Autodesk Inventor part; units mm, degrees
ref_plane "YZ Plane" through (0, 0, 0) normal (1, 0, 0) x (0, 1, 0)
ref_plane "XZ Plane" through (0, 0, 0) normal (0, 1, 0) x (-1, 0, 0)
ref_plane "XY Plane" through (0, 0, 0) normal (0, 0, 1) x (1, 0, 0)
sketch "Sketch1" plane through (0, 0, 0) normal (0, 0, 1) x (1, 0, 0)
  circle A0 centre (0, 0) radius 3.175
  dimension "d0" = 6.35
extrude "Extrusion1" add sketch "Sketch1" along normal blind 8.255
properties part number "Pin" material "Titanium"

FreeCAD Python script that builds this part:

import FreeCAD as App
import Part
import Sketcher
from FreeCAD import Vector
Q = App.Units.Quantity

doc = App.newDocument("Part")
params = doc.addObject("Spreadsheet::Sheet", "Params")
for row, (alias, value) in enumerate([
    ("sketch1_diameter", "0.25 in"),
    ("pad1_length", "0.325 in"),
], start=1):
    params.set(f"A{row}", alias)
    params.set(f"B{row}", "=" + value)
    params.setAlias(f"B{row}", alias)

body = doc.addObject("PartDesign::Body", "Body")

sketch1 = body.newObject("Sketcher::SketchObject", "Sketch")
sketch1.AttachmentSupport = (doc.getObject("XY_Plane"), [""])
sketch1.MapMode = "FlatFace"
sketch1.addGeometry(Part.Circle(Vector(0, 0, 0), Vector(0, 0, 1), 3.175), False)
sketch1.addConstraint([
    Sketcher.Constraint("Coincident", 0, 3, -1, 1),
    Sketcher.Constraint("Diameter", 0, Q("0.25 in")),
])
sketch1.setExpression("Constraints[1]", "Params.sketch1_diameter")
pad1 = body.newObject("PartDesign::Pad", "Pad")
pad1.Profile = sketch1
pad1.setExpression("Length", "Params.pad1_length")

doc.recompute()
